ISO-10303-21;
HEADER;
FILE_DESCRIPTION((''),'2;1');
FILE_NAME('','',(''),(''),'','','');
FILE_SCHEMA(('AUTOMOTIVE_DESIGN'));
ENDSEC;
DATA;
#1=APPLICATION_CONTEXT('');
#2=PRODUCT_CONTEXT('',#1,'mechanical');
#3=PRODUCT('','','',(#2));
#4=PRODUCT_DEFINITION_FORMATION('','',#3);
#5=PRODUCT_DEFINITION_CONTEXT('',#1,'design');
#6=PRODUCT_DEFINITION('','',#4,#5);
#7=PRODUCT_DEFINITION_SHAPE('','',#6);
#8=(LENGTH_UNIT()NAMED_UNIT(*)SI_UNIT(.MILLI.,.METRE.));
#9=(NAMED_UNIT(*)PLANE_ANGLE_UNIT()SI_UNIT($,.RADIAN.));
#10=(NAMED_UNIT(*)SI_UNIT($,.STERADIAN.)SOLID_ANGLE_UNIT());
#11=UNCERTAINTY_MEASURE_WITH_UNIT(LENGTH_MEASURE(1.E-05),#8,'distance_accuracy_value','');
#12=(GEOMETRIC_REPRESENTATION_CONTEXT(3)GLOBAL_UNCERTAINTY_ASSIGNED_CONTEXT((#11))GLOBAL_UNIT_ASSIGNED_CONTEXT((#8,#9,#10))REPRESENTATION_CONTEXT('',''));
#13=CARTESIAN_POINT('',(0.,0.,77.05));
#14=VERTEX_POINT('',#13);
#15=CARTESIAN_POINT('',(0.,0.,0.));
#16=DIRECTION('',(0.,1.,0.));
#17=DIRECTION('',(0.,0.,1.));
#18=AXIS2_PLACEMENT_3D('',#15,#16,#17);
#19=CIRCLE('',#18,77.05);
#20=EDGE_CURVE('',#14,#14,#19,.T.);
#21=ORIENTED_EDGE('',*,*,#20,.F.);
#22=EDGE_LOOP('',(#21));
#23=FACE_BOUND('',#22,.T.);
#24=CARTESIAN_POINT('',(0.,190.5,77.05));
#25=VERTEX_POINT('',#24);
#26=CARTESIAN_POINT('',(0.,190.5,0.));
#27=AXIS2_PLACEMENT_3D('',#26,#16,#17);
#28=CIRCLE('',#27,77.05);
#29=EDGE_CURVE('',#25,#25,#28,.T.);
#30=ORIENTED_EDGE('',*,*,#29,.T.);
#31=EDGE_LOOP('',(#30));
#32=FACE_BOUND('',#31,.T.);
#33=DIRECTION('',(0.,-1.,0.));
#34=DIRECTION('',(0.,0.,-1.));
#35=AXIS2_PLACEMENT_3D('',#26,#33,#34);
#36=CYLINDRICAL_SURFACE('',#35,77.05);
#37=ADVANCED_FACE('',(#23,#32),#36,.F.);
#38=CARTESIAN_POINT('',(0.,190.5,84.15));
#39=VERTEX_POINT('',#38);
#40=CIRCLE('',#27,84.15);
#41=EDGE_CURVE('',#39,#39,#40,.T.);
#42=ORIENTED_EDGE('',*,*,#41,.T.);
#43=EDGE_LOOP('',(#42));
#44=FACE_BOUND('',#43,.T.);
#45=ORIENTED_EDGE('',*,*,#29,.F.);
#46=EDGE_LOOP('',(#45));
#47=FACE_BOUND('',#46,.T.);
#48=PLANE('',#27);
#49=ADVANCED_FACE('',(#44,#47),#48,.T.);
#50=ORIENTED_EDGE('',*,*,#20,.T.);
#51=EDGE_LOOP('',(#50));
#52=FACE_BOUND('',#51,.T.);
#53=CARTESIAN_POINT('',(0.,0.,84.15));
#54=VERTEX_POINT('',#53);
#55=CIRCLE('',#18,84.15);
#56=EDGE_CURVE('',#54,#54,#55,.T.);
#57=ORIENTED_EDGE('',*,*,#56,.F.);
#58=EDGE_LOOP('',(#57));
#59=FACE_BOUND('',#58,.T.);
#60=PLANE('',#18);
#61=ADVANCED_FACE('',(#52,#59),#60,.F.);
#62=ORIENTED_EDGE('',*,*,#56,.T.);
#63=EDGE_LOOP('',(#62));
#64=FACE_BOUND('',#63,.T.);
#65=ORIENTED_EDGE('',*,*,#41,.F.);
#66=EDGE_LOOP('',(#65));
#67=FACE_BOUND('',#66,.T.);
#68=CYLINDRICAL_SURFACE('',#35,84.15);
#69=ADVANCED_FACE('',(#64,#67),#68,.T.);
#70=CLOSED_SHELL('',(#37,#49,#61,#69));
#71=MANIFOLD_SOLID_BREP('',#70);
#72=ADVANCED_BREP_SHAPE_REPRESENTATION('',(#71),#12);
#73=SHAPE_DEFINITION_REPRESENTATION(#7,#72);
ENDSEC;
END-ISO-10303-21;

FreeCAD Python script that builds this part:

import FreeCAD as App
import Part
import Sketcher

doc = App.newDocument("Part")
body = doc.addObject("PartDesign::Body", "Body")

sketch1 = body.newObject("Sketcher::SketchObject", "Sketch")
sketch1.AttachmentSupport = (doc.getObject("XZ_Plane"), [""])
sketch1.MapMode = "FlatFace"
sketch1.addGeometry([
    Part.Circle(App.Vector(0, 0, 0), App.Vector(0, 0, 1), 84),
    Part.Circle(App.Vector(0, 0, 0), App.Vector(0, 0, 1), 77),
], False)
sketch1.addConstraint([
    Sketcher.Constraint("Coincident", 0, 3, -1, 1),
    Sketcher.Constraint("Coincident", 1, 3, -1, 1),
    Sketcher.Constraint("Diameter", 0, 168.3),
    Sketcher.Constraint("Diameter", 1, 154.1),
])
pad1 = body.newObject("PartDesign::Pad", "Pad")
pad1.Profile = sketch1
pad1.Length = 190.5
pad1.Reversed = True

doc.recompute()
